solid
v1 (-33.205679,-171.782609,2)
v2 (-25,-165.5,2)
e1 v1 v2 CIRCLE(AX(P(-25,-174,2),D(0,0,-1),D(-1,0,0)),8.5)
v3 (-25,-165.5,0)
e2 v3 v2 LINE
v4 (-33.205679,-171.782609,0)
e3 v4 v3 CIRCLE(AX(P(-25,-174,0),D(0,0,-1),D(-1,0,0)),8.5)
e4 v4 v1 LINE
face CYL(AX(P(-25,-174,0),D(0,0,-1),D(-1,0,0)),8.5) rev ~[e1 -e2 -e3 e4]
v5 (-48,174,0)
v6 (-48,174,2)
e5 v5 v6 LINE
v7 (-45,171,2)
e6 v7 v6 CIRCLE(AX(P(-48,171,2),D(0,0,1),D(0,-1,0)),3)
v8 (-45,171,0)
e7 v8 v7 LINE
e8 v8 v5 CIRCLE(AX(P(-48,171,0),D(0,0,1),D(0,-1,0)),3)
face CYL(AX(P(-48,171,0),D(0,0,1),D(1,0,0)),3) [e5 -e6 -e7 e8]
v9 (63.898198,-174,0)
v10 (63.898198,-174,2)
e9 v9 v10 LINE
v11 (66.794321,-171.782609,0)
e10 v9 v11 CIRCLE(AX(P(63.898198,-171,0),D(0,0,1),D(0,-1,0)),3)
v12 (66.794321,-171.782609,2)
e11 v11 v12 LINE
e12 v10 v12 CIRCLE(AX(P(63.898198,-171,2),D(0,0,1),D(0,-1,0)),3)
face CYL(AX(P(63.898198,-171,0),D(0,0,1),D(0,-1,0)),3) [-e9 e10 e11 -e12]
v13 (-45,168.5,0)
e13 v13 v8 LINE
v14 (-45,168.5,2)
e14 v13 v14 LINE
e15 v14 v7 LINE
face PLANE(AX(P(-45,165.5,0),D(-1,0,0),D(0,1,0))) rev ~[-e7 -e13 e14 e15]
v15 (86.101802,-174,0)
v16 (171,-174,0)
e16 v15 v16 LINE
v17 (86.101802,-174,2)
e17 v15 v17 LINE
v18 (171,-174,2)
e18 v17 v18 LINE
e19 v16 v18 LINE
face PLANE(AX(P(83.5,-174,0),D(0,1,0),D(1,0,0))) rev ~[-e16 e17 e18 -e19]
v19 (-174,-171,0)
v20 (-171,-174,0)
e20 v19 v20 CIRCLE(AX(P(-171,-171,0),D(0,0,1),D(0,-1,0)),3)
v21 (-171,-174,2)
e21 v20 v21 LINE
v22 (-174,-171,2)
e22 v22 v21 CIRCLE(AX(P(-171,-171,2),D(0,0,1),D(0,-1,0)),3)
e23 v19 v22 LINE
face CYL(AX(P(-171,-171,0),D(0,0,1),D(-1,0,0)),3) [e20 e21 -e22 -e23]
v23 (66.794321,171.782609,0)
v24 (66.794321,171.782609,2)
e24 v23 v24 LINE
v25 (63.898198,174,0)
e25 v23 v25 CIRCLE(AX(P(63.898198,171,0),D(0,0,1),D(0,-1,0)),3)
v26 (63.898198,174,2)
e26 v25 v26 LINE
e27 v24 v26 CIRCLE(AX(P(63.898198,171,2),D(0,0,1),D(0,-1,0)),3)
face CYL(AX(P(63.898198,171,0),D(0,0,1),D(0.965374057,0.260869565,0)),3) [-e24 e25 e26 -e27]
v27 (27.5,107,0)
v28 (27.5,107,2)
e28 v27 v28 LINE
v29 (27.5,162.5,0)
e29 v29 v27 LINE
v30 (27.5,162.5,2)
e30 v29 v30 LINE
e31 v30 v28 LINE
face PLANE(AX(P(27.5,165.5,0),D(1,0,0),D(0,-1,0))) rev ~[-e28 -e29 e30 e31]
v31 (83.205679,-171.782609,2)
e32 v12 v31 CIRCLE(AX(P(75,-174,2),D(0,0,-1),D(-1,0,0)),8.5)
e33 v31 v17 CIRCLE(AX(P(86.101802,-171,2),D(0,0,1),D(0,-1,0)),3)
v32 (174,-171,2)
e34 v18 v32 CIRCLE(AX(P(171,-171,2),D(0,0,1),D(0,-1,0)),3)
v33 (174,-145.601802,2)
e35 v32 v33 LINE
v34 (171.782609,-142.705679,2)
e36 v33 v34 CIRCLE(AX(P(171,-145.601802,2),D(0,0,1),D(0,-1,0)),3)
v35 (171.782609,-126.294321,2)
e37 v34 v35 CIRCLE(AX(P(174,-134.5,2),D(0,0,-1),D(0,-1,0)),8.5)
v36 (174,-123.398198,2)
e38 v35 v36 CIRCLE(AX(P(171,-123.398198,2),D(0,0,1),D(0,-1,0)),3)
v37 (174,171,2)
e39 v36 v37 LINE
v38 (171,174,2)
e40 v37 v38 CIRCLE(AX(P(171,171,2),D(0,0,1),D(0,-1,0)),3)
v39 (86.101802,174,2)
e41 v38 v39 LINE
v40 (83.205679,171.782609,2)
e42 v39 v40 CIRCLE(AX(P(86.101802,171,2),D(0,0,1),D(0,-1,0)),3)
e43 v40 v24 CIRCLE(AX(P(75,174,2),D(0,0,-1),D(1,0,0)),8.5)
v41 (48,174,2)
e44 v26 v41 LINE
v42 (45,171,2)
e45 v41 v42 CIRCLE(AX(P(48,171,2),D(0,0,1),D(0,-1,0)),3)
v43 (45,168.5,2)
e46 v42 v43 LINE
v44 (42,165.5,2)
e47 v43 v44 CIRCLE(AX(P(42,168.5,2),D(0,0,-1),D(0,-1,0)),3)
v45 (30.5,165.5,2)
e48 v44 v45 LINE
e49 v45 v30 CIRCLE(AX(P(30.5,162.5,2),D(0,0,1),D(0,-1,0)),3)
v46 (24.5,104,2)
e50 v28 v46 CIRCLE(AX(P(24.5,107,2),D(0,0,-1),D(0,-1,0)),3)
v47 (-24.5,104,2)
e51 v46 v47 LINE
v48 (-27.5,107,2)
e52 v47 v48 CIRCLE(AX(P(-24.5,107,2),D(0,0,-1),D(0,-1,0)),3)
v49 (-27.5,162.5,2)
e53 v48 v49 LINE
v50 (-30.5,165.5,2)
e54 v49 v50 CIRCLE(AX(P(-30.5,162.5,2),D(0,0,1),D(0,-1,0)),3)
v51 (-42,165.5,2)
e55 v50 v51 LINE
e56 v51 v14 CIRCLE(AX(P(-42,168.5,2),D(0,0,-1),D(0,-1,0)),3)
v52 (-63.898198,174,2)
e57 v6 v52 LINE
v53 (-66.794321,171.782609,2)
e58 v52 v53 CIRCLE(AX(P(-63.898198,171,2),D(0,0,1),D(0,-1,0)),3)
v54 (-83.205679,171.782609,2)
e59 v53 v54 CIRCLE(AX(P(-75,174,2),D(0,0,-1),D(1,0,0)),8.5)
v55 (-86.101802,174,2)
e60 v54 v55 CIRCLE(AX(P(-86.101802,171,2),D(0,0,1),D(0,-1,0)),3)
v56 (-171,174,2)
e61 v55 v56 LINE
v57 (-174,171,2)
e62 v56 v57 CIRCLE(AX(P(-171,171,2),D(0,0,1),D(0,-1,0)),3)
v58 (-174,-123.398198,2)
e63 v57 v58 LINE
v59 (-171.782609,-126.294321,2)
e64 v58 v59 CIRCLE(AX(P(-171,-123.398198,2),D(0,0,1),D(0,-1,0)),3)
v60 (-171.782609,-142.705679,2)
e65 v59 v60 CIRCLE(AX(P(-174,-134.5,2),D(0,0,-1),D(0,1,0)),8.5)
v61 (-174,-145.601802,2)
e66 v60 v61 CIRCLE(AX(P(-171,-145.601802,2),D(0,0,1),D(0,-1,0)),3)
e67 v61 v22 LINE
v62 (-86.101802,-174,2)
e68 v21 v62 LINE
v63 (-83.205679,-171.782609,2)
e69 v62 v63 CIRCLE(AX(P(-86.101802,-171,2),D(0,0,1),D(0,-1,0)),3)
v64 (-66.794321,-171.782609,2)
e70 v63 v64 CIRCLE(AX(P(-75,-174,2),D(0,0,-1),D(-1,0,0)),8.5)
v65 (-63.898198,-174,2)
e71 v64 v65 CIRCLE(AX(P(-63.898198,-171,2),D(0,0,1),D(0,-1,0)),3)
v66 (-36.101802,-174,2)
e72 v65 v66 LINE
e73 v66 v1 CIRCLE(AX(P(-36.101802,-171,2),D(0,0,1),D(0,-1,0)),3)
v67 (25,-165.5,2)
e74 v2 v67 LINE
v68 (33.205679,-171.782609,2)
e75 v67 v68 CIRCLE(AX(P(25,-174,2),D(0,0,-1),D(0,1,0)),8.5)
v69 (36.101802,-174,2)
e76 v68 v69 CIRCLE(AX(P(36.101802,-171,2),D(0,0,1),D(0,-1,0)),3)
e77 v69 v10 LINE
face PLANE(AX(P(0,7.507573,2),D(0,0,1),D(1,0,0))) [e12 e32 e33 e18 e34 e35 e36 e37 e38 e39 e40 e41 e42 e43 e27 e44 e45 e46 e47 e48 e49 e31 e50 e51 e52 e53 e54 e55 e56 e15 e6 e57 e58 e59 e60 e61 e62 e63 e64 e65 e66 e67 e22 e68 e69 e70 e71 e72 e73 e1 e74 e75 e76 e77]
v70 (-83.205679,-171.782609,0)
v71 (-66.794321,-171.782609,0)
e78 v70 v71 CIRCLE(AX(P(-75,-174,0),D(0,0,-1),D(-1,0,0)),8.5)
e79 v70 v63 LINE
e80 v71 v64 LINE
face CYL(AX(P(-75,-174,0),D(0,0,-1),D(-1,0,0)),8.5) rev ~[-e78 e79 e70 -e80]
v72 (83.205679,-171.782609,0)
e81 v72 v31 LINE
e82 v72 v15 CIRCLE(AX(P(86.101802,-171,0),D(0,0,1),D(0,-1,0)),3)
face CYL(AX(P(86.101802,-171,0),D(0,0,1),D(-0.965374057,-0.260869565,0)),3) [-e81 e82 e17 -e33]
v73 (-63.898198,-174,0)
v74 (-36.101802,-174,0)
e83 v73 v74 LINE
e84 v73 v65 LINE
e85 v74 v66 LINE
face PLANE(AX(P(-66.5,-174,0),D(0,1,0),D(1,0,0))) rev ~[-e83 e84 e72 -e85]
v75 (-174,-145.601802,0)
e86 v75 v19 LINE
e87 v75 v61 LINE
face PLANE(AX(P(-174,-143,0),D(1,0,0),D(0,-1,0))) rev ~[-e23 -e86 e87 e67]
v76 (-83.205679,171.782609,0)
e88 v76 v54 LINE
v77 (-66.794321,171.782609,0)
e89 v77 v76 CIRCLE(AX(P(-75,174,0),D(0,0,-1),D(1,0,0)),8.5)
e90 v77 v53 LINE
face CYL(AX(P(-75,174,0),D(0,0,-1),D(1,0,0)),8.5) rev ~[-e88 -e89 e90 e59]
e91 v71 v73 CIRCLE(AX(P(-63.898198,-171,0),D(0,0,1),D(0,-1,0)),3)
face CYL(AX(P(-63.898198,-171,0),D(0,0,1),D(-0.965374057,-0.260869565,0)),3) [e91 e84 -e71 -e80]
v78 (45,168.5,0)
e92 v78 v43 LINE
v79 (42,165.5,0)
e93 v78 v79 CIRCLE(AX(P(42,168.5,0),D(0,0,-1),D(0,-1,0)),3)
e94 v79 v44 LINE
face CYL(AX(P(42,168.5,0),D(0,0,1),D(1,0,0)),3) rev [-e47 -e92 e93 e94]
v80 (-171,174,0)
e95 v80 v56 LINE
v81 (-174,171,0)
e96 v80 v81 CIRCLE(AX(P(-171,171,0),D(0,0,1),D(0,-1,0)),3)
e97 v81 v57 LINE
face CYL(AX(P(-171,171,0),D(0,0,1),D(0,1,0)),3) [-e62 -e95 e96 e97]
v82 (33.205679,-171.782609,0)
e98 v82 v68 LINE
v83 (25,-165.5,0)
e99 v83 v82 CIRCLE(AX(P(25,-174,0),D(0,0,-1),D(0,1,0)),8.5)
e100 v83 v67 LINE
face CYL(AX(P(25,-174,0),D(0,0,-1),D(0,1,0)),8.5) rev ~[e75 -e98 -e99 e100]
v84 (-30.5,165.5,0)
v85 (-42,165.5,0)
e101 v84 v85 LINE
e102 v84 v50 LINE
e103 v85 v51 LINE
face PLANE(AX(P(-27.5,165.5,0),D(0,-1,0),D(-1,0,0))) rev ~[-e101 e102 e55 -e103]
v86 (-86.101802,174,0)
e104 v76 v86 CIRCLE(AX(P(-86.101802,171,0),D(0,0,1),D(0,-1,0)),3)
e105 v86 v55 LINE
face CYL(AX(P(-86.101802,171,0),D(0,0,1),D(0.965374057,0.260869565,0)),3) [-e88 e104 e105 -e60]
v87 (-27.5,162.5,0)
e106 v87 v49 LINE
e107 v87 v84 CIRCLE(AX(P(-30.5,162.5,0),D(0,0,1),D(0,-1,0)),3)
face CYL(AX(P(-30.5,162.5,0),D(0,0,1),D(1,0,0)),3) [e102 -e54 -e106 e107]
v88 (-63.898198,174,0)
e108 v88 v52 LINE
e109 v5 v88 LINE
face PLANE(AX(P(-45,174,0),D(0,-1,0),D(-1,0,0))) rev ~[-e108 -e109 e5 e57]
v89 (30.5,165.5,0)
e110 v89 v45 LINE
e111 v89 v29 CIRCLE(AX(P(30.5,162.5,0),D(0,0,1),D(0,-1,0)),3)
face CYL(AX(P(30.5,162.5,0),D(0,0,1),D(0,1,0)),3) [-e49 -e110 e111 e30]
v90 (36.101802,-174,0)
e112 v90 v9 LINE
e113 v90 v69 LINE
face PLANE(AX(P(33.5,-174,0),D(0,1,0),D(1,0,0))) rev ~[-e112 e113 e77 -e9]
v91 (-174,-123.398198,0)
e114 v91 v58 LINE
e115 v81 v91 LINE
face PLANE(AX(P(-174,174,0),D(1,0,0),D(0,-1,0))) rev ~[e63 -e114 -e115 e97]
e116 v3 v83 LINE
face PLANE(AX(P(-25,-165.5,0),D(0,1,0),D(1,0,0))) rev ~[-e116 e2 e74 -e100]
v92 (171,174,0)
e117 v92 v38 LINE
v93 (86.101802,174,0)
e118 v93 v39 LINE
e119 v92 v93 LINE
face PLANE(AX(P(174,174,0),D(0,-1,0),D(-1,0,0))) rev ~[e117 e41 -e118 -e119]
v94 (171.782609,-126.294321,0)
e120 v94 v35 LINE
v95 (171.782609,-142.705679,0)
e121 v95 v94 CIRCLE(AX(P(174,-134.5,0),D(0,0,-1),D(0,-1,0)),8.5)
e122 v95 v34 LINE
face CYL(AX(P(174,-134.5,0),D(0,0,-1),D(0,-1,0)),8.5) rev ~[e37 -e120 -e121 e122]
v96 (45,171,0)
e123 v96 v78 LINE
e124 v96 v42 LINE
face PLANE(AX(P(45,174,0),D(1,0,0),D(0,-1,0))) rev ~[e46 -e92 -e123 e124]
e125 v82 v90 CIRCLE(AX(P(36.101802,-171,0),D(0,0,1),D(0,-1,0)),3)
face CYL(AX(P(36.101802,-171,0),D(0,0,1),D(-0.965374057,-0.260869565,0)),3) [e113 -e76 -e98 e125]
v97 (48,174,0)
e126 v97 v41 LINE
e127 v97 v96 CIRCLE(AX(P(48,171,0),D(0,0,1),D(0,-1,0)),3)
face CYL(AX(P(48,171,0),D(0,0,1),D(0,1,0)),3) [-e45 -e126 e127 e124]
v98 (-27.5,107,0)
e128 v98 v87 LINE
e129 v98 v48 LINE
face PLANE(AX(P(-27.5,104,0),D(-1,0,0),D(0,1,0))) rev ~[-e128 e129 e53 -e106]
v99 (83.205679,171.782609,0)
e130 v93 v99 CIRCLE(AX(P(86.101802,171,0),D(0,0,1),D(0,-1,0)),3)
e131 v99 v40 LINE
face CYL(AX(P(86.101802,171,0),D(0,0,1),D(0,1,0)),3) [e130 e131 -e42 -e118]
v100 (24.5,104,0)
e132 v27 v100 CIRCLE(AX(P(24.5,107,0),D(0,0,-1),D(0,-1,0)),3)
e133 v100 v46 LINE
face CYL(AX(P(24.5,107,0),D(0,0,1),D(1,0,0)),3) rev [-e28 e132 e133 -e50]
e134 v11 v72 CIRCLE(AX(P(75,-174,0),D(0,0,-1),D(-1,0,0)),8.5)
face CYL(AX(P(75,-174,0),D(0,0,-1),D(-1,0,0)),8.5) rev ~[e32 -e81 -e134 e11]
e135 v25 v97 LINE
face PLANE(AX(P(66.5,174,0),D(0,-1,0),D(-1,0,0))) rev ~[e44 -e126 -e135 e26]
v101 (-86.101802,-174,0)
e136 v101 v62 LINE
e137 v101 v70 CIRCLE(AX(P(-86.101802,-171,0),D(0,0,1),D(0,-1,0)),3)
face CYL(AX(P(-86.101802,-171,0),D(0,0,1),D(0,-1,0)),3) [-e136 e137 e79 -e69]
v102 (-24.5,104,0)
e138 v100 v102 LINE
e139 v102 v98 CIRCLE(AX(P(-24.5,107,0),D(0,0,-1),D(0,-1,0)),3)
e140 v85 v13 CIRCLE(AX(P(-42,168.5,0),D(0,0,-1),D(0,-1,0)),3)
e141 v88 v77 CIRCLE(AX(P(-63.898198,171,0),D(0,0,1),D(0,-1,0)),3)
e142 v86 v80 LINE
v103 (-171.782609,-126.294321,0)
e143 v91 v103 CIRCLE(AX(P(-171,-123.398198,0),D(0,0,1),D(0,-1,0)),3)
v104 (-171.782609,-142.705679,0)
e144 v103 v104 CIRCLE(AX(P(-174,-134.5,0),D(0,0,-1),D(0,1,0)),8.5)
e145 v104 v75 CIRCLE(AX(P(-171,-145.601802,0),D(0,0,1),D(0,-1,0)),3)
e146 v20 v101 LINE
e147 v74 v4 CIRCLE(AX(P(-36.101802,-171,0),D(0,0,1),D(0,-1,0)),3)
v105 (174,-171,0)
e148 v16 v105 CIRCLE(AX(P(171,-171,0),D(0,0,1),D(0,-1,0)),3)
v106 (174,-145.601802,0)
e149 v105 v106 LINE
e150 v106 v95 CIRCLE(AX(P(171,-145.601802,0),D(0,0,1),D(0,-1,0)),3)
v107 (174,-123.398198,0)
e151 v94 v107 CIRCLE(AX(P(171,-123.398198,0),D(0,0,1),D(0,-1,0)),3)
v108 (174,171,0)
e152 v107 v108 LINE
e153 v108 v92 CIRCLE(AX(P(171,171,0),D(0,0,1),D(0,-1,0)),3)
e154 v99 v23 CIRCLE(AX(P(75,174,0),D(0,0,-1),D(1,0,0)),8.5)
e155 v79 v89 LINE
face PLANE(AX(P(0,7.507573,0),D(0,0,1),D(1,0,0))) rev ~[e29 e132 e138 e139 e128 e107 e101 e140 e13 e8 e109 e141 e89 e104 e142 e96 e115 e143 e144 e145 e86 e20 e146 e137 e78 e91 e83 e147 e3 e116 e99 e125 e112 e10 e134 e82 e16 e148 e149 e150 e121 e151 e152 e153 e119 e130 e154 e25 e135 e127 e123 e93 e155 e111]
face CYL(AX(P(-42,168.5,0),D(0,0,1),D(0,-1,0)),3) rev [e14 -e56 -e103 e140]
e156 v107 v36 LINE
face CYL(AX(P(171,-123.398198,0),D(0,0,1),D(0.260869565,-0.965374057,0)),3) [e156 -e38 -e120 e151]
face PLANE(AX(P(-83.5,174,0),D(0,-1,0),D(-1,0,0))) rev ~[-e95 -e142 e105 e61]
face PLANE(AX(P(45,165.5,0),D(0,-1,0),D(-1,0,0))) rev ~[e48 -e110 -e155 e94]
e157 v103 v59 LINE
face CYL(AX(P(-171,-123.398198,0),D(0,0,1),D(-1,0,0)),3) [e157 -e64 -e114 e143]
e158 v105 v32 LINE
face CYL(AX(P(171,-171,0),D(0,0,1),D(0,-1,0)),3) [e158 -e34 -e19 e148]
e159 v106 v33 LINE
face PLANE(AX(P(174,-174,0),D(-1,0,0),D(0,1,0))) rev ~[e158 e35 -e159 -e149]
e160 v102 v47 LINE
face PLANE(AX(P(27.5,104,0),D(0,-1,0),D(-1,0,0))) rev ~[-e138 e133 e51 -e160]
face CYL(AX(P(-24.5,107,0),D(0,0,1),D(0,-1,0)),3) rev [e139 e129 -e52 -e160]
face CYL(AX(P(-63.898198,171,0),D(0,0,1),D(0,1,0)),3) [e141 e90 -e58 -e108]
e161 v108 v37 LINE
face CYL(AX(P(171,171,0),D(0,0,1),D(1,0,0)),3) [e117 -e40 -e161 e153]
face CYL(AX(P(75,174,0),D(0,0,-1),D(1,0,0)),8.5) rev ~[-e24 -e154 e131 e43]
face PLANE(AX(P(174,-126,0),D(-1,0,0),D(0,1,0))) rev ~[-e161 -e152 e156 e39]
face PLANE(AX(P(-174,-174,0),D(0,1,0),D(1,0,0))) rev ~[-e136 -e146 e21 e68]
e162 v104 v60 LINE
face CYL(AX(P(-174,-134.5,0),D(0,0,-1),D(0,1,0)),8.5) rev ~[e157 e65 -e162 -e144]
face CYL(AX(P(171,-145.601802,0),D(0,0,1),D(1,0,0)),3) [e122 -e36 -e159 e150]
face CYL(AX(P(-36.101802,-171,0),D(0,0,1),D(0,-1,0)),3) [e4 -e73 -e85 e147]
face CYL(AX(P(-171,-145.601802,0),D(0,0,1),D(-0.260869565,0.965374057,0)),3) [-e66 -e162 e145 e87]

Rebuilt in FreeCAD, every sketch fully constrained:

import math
import FreeCAD as App
import Part
import Sketcher
from FreeCAD import Vector


def edges_at(feature, points):
    """Names of the edges that pass closest to the given points."""
    edges = feature.Shape.Edges
    near = lambda p: min(range(len(edges)), key=lambda i: edges[i].distToShape(Part.Vertex(*p))[0])
    return sorted({f"Edge{near(p) + 1}" for p in points})

doc = App.newDocument("Part")
body = doc.addObject("PartDesign::Body", "Body")

# Sketch on XY plane
sketch1 = doc.addObject("Sketcher::SketchObject", "Sketch")
body.addObject(sketch1)
sketch1.AttachmentSupport = (doc.XY_Plane, [""])
sketch1.MapMode = "FlatFace"
sketch1.addGeometry([
    Part.LineSegment(Vector(-25, -165.5, 0), Vector(25, -165.5, 0)),  # 0
    Part.ArcOfCircle(Part.Circle(Vector(25, -174, 0), Vector(0, 0, 1), 8.5), math.radians(0), math.radians(90)),  # 1
    Part.LineSegment(Vector(33.5, -174, 0), Vector(66.5, -174, 0)),  # 2
    Part.ArcOfCircle(Part.Circle(Vector(75, -174, 0), Vector(0, 0, 1), 8.5), math.radians(0), math.radians(180)),  # 3
    Part.LineSegment(Vector(83.5, -174, 0), Vector(174, -174, 0)),  # 4
    Part.LineSegment(Vector(174, -174, 0), Vector(174, -143, 0)),  # 5
    Part.ArcOfCircle(Part.Circle(Vector(174, -134.5, 0), Vector(0, 0, 1), 8.5), math.radians(90), math.radians(270)),  # 6
    Part.LineSegment(Vector(174, -126, 0), Vector(174, 174, 0)),  # 7
    Part.LineSegment(Vector(174, 174, 0), Vector(83.5, 174, 0)),  # 8
    Part.ArcOfCircle(Part.Circle(Vector(75, 174, 0), Vector(0, 0, 1), 8.5), math.radians(180), math.radians(360)),  # 9
    Part.LineSegment(Vector(66.5, 174, 0), Vector(45, 174, 0)),  # 10
    Part.LineSegment(Vector(45, 174, 0), Vector(45, 165.5, 0)),  # 11
    Part.LineSegment(Vector(45, 165.5, 0), Vector(27.5, 165.5, 0)),  # 12
    Part.LineSegment(Vector(27.5, 165.5, 0), Vector(27.5, 104, 0)),  # 13
    Part.LineSegment(Vector(27.5, 104, 0), Vector(-27.5, 104, 0)),  # 14
    Part.LineSegment(Vector(-27.5, 104, 0), Vector(-27.5, 165.5, 0)),  # 15
    Part.LineSegment(Vector(-27.5, 165.5, 0), Vector(-45, 165.5, 0)),  # 16
    Part.LineSegment(Vector(-45, 165.5, 0), Vector(-45, 174, 0)),  # 17
    Part.LineSegment(Vector(-45, 174, 0), Vector(-66.5, 174, 0)),  # 18
    Part.ArcOfCircle(Part.Circle(Vector(-75, 174, 0), Vector(0, 0, 1), 8.5), math.radians(180), math.radians(360)),  # 19
    Part.LineSegment(Vector(-83.5, 174, 0), Vector(-174, 174, 0)),  # 20
    Part.LineSegment(Vector(-174, 174, 0), Vector(-174, -126, 0)),  # 21
    Part.ArcOfCircle(Part.Circle(Vector(-174, -134.5, 0), Vector(0, 0, 1), 8.5), math.radians(-90), math.radians(90)),  # 22
    Part.LineSegment(Vector(-174, -143, 0), Vector(-174, -174, 0)),  # 23
    Part.LineSegment(Vector(-174, -174, 0), Vector(-83.5, -174, 0)),  # 24
    Part.ArcOfCircle(Part.Circle(Vector(-75, -174, 0), Vector(0, 0, 1), 8.5), math.radians(0), math.radians(180)),  # 25
    Part.LineSegment(Vector(-66.5, -174, 0), Vector(-33.5, -174, 0)),  # 26
    Part.ArcOfCircle(Part.Circle(Vector(-25, -174, 0), Vector(0, 0, 1), 8.5), math.radians(90), math.radians(180)),  # 27
], False)
sketch1.addConstraint([
    Sketcher.Constraint("Tangent", 0, 2, 1, 2),
    Sketcher.Constraint("Coincident", 1, 1, 2, 1),
    Sketcher.Constraint("Coincident", 2, 2, 3, 2),
    Sketcher.Constraint("Coincident", 3, 1, 4, 1),
    Sketcher.Constraint("Coincident", 4, 2, 5, 1),
    Sketcher.Constraint("Coincident", 5, 2, 6, 2),
    Sketcher.Constraint("Coincident", 6, 1, 7, 1),
    Sketcher.Constraint("Coincident", 7, 2, 8, 1),
    Sketcher.Constraint("Coincident", 8, 2, 9, 2),
    Sketcher.Constraint("Coincident", 9, 1, 10, 1),
    Sketcher.Constraint("Coincident", 10, 2, 11, 1),
    Sketcher.Constraint("Coincident", 11, 2, 12, 1),
    Sketcher.Constraint("Coincident", 12, 2, 13, 1),
    Sketcher.Constraint("Coincident", 13, 2, 14, 1),
    Sketcher.Constraint("Coincident", 14, 2, 15, 1),
    Sketcher.Constraint("Coincident", 15, 2, 16, 1),
    Sketcher.Constraint("Coincident", 16, 2, 17, 1),
    Sketcher.Constraint("Coincident", 17, 2, 18, 1),
    Sketcher.Constraint("Coincident", 18, 2, 19, 2),
    Sketcher.Constraint("Coincident", 19, 1, 20, 1),
    Sketcher.Constraint("Coincident", 20, 2, 21, 1),
    Sketcher.Constraint("Coincident", 21, 2, 22, 2),
    Sketcher.Constraint("Coincident", 22, 1, 23, 1),
    Sketcher.Constraint("Coincident", 23, 2, 24, 1),
    Sketcher.Constraint("Coincident", 24, 2, 25, 2),
    Sketcher.Constraint("Coincident", 25, 1, 26, 1),
    Sketcher.Constraint("Coincident", 26, 2, 27, 2),
    Sketcher.Constraint("Tangent", 27, 1, 0, 1),
    Sketcher.Constraint("Horizontal", 0),
    Sketcher.Constraint("Horizontal", 2),
    Sketcher.Constraint("Horizontal", 4),
    Sketcher.Constraint("Vertical", 5),
    Sketcher.Constraint("Vertical", 7),
    Sketcher.Constraint("Horizontal", 8),
    Sketcher.Constraint("Horizontal", 10),
    Sketcher.Constraint("Vertical", 11),
    Sketcher.Constraint("Horizontal", 12),
    Sketcher.Constraint("Vertical", 13),
    Sketcher.Constraint("Horizontal", 14),
    Sketcher.Constraint("Vertical", 15),
    Sketcher.Constraint("Horizontal", 16),
    Sketcher.Constraint("Vertical", 17),
    Sketcher.Constraint("Horizontal", 18),
    Sketcher.Constraint("Horizontal", 20),
    Sketcher.Constraint("Vertical", 21),
    Sketcher.Constraint("Vertical", 23),
    Sketcher.Constraint("Horizontal", 24),
    Sketcher.Constraint("Horizontal", 26),
    Sketcher.Constraint("Equal", 1, 3),
    Sketcher.Constraint("Equal", 3, 6),
    Sketcher.Constraint("Equal", 6, 9),
    Sketcher.Constraint("Equal", 9, 19),
    Sketcher.Constraint("Equal", 19, 22),
    Sketcher.Constraint("Equal", 22, 25),
    Sketcher.Constraint("Equal", 25, 27),
    Sketcher.Constraint("Symmetric", 3, 3, 19, 3, -1, 1),
    Sketcher.Constraint("Symmetric", 9, 3, 25, 3, -1, 1),
    Sketcher.Constraint("Symmetric", 4, 2, 20, 2, -1, 1),
    Sketcher.Constraint("Symmetric", 7, 2, 23, 2, -1, 1),
    Sketcher.Constraint("Symmetric", 9, 3, 19, 3, -2),
    Sketcher.Constraint("Symmetric", 6, 3, 22, 3, -2),
    Sketcher.Constraint("Symmetric", 12, 2, 15, 2, -2),
    Sketcher.Constraint("Symmetric", 10, 2, 17, 2, -2),
    Sketcher.Constraint("Symmetric", 7, 2, 20, 2, -2),
    Sketcher.Constraint("Symmetric", 1, 1, 26, 2, -2),
    Sketcher.Constraint("Horizontal", 1, 3, 3, 3),
    Sketcher.Constraint("Horizontal", 27, 3, 1, 1),
    Sketcher.Constraint("Horizontal", 2, 2, 3, 1),
    Sketcher.Constraint("Horizontal", 8, 2, 9, 1),
    Sketcher.Constraint("Vertical", 6, 3, 4, 2),
    Sketcher.Constraint("Radius", 1, 8.5),
    Sketcher.Constraint("DistanceX", 0, 1, 0, 2, 50.0),
    Sketcher.Constraint("DistanceX", 2, 1, 2, 2, 33.0),
    Sketcher.Constraint("DistanceX", 14, 2, 14, 1, 55.0),
    Sketcher.Constraint("DistanceY", 5, 1, 5, 2, 31.0),
    Sketcher.Constraint("DistanceY", 7, 1, 7, 2, 300.0),
    Sketcher.Constraint("DistanceX", 4, 1, 4, 2, 90.5),
    Sketcher.Constraint("DistanceX", 10, 2, 10, 1, 21.5),
    Sketcher.Constraint("DistanceY", 11, 2, 11, 1, 8.5),
    Sketcher.Constraint("DistanceY", 13, 2, 13, 1, 61.5),
])
pad1 = doc.addObject("PartDesign::Pad", "Pad")
body.addObject(pad1)
pad1.Profile = sketch1
pad1.Length = 2
doc.recompute()

fillet = doc.addObject("PartDesign::Fillet", "Fillet")
body.addObject(fillet)
fillet.Base = (pad1, edges_at(pad1, [
    (174, -174, 1),
    (83.5, -174, 1),
    (66.5, -174, 1),
    (33.5, -174, 1),
    (-33.5, -174, 1),
    (-66.5, -174, 1),
    (-83.5, -174, 1),
    (-174, -174, 1),
    (-174, -143, 1),
    (-174, -126, 1),
    (-174, 174, 1),
    (-83.5, 174, 1),
    (-66.5, 174, 1),
    (-45, 174, 1),
    (-45, 165.5, 1),
    (-27.5, 165.5, 1),
    (-27.5, 104, 1),
    (27.5, 104, 1),
    (27.5, 165.5, 1),
    (45, 165.5, 1),
    (45, 174, 1),
    (66.5, 174, 1),
    (83.5, 174, 1),
    (174, 174, 1),
    (174, -126, 1),
    (174, -143, 1),
]))
fillet.Radius = 3

doc.recompute()
